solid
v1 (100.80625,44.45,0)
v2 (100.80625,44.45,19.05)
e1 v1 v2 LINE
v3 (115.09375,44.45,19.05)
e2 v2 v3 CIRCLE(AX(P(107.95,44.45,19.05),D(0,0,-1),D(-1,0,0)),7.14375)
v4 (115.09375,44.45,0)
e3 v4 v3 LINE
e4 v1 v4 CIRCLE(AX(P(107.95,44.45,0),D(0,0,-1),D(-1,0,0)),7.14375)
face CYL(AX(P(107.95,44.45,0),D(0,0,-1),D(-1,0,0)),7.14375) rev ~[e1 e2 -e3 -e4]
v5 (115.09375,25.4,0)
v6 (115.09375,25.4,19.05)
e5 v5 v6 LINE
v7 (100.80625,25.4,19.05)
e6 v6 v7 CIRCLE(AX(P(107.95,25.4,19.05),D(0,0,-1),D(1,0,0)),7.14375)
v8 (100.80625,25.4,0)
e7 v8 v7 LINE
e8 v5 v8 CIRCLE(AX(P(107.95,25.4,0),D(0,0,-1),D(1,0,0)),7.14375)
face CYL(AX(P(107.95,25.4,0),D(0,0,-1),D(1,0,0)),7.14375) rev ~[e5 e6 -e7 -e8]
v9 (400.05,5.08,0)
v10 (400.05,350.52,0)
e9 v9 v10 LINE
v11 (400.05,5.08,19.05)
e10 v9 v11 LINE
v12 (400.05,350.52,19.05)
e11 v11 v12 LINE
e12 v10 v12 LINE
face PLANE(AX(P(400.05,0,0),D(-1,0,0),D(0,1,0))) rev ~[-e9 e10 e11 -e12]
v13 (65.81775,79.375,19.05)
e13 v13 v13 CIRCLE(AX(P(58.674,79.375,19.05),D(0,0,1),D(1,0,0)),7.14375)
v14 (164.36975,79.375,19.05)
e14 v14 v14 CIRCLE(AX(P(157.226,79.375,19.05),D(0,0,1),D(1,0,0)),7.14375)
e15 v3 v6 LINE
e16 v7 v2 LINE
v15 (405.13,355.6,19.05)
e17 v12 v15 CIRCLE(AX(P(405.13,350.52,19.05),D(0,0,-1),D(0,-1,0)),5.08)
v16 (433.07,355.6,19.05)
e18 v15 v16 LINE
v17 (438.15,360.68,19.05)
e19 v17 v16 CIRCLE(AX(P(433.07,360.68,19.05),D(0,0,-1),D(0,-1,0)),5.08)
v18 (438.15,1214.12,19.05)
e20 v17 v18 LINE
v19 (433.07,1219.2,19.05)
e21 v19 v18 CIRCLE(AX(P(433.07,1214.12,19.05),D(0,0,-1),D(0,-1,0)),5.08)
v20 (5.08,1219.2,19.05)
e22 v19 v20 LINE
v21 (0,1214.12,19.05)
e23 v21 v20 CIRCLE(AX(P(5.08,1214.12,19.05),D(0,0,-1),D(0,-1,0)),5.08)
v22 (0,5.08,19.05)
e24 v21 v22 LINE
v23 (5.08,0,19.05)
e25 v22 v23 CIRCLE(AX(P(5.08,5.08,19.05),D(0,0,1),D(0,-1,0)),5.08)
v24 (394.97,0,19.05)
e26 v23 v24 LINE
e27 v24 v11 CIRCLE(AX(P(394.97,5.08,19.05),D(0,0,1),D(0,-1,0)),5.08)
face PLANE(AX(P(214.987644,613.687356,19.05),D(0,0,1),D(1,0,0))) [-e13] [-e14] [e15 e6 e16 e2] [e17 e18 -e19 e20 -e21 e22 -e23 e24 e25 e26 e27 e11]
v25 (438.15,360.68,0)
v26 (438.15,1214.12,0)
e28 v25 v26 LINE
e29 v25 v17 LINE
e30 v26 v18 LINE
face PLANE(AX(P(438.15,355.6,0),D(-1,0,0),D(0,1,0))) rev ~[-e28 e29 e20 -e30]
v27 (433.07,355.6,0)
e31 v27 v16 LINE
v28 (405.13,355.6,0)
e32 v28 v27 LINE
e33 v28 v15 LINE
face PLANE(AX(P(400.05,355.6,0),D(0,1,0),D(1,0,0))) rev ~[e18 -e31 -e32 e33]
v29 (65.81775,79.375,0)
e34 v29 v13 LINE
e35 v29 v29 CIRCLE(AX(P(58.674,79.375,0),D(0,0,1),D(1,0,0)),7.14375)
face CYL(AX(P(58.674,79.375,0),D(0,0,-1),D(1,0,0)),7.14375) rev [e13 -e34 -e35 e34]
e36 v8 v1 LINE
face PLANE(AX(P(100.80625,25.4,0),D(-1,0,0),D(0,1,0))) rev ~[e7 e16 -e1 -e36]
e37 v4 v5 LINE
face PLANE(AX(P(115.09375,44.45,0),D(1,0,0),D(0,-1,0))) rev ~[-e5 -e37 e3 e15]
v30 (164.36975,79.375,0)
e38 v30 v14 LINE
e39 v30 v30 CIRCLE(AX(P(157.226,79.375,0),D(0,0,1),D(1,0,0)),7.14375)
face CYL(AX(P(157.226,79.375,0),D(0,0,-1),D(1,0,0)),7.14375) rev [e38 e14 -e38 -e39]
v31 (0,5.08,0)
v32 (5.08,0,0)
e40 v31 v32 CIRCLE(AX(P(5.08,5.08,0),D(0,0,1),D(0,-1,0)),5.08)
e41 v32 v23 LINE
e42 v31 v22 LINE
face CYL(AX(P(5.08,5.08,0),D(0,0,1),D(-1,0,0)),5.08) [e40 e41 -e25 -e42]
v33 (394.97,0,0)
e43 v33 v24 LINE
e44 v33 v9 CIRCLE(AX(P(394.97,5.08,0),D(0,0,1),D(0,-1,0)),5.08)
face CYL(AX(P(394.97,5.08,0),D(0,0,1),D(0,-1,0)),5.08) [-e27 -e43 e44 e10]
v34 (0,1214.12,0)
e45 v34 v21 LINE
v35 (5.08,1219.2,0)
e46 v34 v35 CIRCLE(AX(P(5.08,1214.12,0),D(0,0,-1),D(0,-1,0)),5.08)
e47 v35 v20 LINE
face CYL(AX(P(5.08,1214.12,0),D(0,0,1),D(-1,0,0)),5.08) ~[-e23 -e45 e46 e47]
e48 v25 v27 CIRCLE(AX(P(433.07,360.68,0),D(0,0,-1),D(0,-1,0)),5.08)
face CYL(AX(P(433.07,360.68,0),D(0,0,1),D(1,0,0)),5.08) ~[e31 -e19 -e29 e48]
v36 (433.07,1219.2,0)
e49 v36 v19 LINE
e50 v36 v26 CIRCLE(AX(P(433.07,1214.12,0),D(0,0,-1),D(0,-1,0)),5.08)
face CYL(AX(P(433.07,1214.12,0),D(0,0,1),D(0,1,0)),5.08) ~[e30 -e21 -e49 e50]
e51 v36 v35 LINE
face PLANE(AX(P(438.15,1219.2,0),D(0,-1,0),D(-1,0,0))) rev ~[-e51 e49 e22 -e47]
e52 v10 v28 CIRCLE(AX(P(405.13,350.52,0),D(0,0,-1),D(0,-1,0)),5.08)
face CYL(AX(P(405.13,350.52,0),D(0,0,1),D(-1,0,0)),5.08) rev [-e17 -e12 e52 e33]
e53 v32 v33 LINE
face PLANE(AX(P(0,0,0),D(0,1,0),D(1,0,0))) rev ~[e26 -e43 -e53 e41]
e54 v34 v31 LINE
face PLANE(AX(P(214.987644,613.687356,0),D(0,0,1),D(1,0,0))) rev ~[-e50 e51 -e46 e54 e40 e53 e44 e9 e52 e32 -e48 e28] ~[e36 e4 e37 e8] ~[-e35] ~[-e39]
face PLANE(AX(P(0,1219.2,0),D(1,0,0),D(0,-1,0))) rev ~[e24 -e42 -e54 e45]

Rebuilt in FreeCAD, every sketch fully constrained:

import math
import FreeCAD as App
import Part
import Sketcher
from FreeCAD import Vector
Q = App.Units.Quantity


def edges_at(feature, points):
    """Names of the edges that pass closest to the given points."""
    edges = feature.Shape.Edges
    near = lambda p: min(range(len(edges)), key=lambda i: edges[i].distToShape(Part.Vertex(*p))[0])
    return sorted({f"Edge{near(p) + 1}" for p in points})


def add_polygon(sketch, points):
    """Adds a closed chain of lines whose ends are joined by coincident constraints."""
    first, n = sketch.GeometryCount, len(points)
    for a, b in zip(points, points[1:] + points[:1]):
        sketch.addGeometry(Part.LineSegment(App.Vector(*a, 0), App.Vector(*b, 0)), False)
    for i in range(n):
        sketch.addConstraint(Sketcher.Constraint("Coincident", first + i, 2, first + (i + 1) % n, 1))

doc = App.newDocument("Part")
body = doc.addObject("PartDesign::Body", "Body")

# Sketch on XY plane
sketch1 = body.newObject("Sketcher::SketchObject", "Sketch")
sketch1.AttachmentSupport = (doc.getObject("XY_Plane"), [""])
sketch1.MapMode = "FlatFace"
add_polygon(sketch1, [(0, 1219.2), (0, 0), (400.05, 0), (400.05, 355.6), (438.15, 355.6), (438.15, 1219.2)])  # lines 0-5
sketch1.addGeometry(Part.ArcOfCircle(Part.Circle(Vector(107.95, 44.45, 0), Vector(0, 0, 1), 7.14375), math.radians(0), math.radians(180)), False)  # 6
sketch1.addGeometry(Part.LineSegment(Vector(115.09375, 44.45, 0), Vector(115.09375, 25.4, 0)), False)  # 7
sketch1.addGeometry(Part.ArcOfCircle(Part.Circle(Vector(107.95, 25.4, 0), Vector(0, 0, 1), 7.14375), math.radians(180), math.radians(360)), False)  # 8
sketch1.addGeometry(Part.LineSegment(Vector(100.80625, 25.4, 0), Vector(100.80625, 44.45, 0)), False)  # 9
sketch1.addGeometry(Part.Circle(Vector(58.674, 79.375, 0), Vector(0, 0, 1), 7.14375), False)  # 10
sketch1.addGeometry(Part.Circle(Vector(157.226, 79.375, 0), Vector(0, 0, 1), 7.14375), False)  # 11
sketch1.addConstraint([
    Sketcher.Constraint("Tangent", 6, 1, 7, 1),
    Sketcher.Constraint("Tangent", 7, 2, 8, 2),
    Sketcher.Constraint("Tangent", 8, 1, 9, 1),
    Sketcher.Constraint("Tangent", 9, 2, 6, 2),
    Sketcher.Constraint("Vertical", 0),
    Sketcher.Constraint("Horizontal", 1),
    Sketcher.Constraint("Vertical", 2),
    Sketcher.Constraint("Horizontal", 3),
    Sketcher.Constraint("Vertical", 4),
    Sketcher.Constraint("Horizontal", 5),
    Sketcher.Constraint("Vertical", 7),
    Sketcher.Constraint("Vertical", 9),
    Sketcher.Constraint("Coincident", 0, 2, -1, 1),
    Sketcher.Constraint("Equal", 8, 10),
    Sketcher.Constraint("Equal", 10, 11),
    Sketcher.Constraint("Horizontal", 10, 3, 11, 3),
    Sketcher.Constraint("DistanceY", 0, 2, 0, 1, Q("48 in")),
    Sketcher.Constraint("DistanceY", 2, 1, 2, 2, Q("14 in")),
    Sketcher.Constraint("Diameter", 10, Q("0.5625 in")),
    Sketcher.Constraint("DistanceX", 3, 1, 3, 2, Q("1.5 in")),
    Sketcher.Constraint("DistanceY", -1, 1, 8, 3, Q("1 in")),
    Sketcher.Constraint("DistanceX", 6, 3, 3, 2, Q("13 in")),
    Sketcher.Constraint("DistanceX", 1, 1, 1, 2, Q("15.75 in")),
    Sketcher.Constraint("DistanceY", 7, 2, 7, 1, Q("0.75 in")),
    Sketcher.Constraint("DistanceX", -1, 1, 10, 3, Q("2.31 in")),
    Sketcher.Constraint("DistanceX", -1, 1, 11, 3, Q("6.19 in")),
    Sketcher.Constraint("DistanceY", -1, 1, 10, 3, Q("3.125 in")),
])
pad1 = body.newObject("PartDesign::Pad", "Pad")
pad1.Profile = sketch1
pad1.Length = Q("0.75 in")
doc.recompute()

fillet = body.newObject("PartDesign::Fillet", "Fillet")
fillet.Base = (pad1, edges_at(pad1, [
    (0, 1219.2, 9.525),
    (0, 0, 9.525),
    (438.15, 355.6, 9.525),
    (400.05, 0, 9.525),
    (400.05, 355.6, 9.525),
    (438.15, 1219.2, 9.525),
]))
fillet.Radius = Q("0.2 in")

doc.recompute()
